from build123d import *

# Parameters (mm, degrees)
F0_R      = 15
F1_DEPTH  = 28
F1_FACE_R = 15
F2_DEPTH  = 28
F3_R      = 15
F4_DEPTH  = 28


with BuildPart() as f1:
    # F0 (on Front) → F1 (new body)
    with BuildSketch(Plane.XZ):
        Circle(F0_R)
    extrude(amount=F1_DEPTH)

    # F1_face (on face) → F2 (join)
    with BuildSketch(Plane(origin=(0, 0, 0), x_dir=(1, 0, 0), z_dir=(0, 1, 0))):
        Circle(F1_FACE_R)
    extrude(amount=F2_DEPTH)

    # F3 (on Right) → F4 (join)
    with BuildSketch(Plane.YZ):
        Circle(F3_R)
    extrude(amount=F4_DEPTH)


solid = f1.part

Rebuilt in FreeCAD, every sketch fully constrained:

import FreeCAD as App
import Part
import Sketcher
from FreeCAD import Vector
Q = App.Units.Quantity

doc = App.newDocument("Part")
body = doc.addObject("PartDesign::Body", "Body")

sketch1 = body.newObject("Sketcher::SketchObject", "Sketch")
sketch1.AttachmentSupport = (doc.getObject("XZ_Plane"), [""])
sketch1.MapMode = "FlatFace"
sketch1.addGeometry(Part.Circle(Vector(0, 0, 0), Vector(0, 0, 1), 15), False)
sketch1.addConstraint([
    Sketcher.Constraint("Coincident", 0, 3, -1, 1),
    Sketcher.Constraint("Diameter", 0, Q("30 mm")),
])
pad1 = body.newObject("PartDesign::Pad", "Pad")
pad1.Profile = sketch1
pad1.Length = 28

sketch2 = body.newObject("Sketcher::SketchObject", "Sketch001")
sketch2.AttachmentSupport = (doc.getObject("XZ_Plane"), [""])
sketch2.MapMode = "FlatFace"
sketch2.addGeometry(Part.Circle(Vector(0, 0, 0), Vector(0, 0, 1), 15), False)
sketch2.addConstraint([
    Sketcher.Constraint("Coincident", 0, 3, -1, 1),
    Sketcher.Constraint("Diameter", 0, Q("30 mm")),
])
pad2 = body.newObject("PartDesign::Pad", "Pad001")
pad2.Profile = sketch2
pad2.Length = 28
pad2.Reversed = True

sketch3 = body.newObject("Sketcher::SketchObject", "Sketch002")
sketch3.AttachmentSupport = (doc.getObject("YZ_Plane"), [""])
sketch3.MapMode = "FlatFace"
sketch3.addGeometry(Part.Circle(Vector(0, 0, 0), Vector(0, 0, 1), 15), False)
sketch3.addConstraint([
    Sketcher.Constraint("Coincident", 0, 3, -1, 1),
    Sketcher.Constraint("Diameter", 0, Q("30 mm")),
])
pad3 = body.newObject("PartDesign::Pad", "Pad002")
pad3.Profile = sketch3
pad3.Length = 28

doc.recompute()
